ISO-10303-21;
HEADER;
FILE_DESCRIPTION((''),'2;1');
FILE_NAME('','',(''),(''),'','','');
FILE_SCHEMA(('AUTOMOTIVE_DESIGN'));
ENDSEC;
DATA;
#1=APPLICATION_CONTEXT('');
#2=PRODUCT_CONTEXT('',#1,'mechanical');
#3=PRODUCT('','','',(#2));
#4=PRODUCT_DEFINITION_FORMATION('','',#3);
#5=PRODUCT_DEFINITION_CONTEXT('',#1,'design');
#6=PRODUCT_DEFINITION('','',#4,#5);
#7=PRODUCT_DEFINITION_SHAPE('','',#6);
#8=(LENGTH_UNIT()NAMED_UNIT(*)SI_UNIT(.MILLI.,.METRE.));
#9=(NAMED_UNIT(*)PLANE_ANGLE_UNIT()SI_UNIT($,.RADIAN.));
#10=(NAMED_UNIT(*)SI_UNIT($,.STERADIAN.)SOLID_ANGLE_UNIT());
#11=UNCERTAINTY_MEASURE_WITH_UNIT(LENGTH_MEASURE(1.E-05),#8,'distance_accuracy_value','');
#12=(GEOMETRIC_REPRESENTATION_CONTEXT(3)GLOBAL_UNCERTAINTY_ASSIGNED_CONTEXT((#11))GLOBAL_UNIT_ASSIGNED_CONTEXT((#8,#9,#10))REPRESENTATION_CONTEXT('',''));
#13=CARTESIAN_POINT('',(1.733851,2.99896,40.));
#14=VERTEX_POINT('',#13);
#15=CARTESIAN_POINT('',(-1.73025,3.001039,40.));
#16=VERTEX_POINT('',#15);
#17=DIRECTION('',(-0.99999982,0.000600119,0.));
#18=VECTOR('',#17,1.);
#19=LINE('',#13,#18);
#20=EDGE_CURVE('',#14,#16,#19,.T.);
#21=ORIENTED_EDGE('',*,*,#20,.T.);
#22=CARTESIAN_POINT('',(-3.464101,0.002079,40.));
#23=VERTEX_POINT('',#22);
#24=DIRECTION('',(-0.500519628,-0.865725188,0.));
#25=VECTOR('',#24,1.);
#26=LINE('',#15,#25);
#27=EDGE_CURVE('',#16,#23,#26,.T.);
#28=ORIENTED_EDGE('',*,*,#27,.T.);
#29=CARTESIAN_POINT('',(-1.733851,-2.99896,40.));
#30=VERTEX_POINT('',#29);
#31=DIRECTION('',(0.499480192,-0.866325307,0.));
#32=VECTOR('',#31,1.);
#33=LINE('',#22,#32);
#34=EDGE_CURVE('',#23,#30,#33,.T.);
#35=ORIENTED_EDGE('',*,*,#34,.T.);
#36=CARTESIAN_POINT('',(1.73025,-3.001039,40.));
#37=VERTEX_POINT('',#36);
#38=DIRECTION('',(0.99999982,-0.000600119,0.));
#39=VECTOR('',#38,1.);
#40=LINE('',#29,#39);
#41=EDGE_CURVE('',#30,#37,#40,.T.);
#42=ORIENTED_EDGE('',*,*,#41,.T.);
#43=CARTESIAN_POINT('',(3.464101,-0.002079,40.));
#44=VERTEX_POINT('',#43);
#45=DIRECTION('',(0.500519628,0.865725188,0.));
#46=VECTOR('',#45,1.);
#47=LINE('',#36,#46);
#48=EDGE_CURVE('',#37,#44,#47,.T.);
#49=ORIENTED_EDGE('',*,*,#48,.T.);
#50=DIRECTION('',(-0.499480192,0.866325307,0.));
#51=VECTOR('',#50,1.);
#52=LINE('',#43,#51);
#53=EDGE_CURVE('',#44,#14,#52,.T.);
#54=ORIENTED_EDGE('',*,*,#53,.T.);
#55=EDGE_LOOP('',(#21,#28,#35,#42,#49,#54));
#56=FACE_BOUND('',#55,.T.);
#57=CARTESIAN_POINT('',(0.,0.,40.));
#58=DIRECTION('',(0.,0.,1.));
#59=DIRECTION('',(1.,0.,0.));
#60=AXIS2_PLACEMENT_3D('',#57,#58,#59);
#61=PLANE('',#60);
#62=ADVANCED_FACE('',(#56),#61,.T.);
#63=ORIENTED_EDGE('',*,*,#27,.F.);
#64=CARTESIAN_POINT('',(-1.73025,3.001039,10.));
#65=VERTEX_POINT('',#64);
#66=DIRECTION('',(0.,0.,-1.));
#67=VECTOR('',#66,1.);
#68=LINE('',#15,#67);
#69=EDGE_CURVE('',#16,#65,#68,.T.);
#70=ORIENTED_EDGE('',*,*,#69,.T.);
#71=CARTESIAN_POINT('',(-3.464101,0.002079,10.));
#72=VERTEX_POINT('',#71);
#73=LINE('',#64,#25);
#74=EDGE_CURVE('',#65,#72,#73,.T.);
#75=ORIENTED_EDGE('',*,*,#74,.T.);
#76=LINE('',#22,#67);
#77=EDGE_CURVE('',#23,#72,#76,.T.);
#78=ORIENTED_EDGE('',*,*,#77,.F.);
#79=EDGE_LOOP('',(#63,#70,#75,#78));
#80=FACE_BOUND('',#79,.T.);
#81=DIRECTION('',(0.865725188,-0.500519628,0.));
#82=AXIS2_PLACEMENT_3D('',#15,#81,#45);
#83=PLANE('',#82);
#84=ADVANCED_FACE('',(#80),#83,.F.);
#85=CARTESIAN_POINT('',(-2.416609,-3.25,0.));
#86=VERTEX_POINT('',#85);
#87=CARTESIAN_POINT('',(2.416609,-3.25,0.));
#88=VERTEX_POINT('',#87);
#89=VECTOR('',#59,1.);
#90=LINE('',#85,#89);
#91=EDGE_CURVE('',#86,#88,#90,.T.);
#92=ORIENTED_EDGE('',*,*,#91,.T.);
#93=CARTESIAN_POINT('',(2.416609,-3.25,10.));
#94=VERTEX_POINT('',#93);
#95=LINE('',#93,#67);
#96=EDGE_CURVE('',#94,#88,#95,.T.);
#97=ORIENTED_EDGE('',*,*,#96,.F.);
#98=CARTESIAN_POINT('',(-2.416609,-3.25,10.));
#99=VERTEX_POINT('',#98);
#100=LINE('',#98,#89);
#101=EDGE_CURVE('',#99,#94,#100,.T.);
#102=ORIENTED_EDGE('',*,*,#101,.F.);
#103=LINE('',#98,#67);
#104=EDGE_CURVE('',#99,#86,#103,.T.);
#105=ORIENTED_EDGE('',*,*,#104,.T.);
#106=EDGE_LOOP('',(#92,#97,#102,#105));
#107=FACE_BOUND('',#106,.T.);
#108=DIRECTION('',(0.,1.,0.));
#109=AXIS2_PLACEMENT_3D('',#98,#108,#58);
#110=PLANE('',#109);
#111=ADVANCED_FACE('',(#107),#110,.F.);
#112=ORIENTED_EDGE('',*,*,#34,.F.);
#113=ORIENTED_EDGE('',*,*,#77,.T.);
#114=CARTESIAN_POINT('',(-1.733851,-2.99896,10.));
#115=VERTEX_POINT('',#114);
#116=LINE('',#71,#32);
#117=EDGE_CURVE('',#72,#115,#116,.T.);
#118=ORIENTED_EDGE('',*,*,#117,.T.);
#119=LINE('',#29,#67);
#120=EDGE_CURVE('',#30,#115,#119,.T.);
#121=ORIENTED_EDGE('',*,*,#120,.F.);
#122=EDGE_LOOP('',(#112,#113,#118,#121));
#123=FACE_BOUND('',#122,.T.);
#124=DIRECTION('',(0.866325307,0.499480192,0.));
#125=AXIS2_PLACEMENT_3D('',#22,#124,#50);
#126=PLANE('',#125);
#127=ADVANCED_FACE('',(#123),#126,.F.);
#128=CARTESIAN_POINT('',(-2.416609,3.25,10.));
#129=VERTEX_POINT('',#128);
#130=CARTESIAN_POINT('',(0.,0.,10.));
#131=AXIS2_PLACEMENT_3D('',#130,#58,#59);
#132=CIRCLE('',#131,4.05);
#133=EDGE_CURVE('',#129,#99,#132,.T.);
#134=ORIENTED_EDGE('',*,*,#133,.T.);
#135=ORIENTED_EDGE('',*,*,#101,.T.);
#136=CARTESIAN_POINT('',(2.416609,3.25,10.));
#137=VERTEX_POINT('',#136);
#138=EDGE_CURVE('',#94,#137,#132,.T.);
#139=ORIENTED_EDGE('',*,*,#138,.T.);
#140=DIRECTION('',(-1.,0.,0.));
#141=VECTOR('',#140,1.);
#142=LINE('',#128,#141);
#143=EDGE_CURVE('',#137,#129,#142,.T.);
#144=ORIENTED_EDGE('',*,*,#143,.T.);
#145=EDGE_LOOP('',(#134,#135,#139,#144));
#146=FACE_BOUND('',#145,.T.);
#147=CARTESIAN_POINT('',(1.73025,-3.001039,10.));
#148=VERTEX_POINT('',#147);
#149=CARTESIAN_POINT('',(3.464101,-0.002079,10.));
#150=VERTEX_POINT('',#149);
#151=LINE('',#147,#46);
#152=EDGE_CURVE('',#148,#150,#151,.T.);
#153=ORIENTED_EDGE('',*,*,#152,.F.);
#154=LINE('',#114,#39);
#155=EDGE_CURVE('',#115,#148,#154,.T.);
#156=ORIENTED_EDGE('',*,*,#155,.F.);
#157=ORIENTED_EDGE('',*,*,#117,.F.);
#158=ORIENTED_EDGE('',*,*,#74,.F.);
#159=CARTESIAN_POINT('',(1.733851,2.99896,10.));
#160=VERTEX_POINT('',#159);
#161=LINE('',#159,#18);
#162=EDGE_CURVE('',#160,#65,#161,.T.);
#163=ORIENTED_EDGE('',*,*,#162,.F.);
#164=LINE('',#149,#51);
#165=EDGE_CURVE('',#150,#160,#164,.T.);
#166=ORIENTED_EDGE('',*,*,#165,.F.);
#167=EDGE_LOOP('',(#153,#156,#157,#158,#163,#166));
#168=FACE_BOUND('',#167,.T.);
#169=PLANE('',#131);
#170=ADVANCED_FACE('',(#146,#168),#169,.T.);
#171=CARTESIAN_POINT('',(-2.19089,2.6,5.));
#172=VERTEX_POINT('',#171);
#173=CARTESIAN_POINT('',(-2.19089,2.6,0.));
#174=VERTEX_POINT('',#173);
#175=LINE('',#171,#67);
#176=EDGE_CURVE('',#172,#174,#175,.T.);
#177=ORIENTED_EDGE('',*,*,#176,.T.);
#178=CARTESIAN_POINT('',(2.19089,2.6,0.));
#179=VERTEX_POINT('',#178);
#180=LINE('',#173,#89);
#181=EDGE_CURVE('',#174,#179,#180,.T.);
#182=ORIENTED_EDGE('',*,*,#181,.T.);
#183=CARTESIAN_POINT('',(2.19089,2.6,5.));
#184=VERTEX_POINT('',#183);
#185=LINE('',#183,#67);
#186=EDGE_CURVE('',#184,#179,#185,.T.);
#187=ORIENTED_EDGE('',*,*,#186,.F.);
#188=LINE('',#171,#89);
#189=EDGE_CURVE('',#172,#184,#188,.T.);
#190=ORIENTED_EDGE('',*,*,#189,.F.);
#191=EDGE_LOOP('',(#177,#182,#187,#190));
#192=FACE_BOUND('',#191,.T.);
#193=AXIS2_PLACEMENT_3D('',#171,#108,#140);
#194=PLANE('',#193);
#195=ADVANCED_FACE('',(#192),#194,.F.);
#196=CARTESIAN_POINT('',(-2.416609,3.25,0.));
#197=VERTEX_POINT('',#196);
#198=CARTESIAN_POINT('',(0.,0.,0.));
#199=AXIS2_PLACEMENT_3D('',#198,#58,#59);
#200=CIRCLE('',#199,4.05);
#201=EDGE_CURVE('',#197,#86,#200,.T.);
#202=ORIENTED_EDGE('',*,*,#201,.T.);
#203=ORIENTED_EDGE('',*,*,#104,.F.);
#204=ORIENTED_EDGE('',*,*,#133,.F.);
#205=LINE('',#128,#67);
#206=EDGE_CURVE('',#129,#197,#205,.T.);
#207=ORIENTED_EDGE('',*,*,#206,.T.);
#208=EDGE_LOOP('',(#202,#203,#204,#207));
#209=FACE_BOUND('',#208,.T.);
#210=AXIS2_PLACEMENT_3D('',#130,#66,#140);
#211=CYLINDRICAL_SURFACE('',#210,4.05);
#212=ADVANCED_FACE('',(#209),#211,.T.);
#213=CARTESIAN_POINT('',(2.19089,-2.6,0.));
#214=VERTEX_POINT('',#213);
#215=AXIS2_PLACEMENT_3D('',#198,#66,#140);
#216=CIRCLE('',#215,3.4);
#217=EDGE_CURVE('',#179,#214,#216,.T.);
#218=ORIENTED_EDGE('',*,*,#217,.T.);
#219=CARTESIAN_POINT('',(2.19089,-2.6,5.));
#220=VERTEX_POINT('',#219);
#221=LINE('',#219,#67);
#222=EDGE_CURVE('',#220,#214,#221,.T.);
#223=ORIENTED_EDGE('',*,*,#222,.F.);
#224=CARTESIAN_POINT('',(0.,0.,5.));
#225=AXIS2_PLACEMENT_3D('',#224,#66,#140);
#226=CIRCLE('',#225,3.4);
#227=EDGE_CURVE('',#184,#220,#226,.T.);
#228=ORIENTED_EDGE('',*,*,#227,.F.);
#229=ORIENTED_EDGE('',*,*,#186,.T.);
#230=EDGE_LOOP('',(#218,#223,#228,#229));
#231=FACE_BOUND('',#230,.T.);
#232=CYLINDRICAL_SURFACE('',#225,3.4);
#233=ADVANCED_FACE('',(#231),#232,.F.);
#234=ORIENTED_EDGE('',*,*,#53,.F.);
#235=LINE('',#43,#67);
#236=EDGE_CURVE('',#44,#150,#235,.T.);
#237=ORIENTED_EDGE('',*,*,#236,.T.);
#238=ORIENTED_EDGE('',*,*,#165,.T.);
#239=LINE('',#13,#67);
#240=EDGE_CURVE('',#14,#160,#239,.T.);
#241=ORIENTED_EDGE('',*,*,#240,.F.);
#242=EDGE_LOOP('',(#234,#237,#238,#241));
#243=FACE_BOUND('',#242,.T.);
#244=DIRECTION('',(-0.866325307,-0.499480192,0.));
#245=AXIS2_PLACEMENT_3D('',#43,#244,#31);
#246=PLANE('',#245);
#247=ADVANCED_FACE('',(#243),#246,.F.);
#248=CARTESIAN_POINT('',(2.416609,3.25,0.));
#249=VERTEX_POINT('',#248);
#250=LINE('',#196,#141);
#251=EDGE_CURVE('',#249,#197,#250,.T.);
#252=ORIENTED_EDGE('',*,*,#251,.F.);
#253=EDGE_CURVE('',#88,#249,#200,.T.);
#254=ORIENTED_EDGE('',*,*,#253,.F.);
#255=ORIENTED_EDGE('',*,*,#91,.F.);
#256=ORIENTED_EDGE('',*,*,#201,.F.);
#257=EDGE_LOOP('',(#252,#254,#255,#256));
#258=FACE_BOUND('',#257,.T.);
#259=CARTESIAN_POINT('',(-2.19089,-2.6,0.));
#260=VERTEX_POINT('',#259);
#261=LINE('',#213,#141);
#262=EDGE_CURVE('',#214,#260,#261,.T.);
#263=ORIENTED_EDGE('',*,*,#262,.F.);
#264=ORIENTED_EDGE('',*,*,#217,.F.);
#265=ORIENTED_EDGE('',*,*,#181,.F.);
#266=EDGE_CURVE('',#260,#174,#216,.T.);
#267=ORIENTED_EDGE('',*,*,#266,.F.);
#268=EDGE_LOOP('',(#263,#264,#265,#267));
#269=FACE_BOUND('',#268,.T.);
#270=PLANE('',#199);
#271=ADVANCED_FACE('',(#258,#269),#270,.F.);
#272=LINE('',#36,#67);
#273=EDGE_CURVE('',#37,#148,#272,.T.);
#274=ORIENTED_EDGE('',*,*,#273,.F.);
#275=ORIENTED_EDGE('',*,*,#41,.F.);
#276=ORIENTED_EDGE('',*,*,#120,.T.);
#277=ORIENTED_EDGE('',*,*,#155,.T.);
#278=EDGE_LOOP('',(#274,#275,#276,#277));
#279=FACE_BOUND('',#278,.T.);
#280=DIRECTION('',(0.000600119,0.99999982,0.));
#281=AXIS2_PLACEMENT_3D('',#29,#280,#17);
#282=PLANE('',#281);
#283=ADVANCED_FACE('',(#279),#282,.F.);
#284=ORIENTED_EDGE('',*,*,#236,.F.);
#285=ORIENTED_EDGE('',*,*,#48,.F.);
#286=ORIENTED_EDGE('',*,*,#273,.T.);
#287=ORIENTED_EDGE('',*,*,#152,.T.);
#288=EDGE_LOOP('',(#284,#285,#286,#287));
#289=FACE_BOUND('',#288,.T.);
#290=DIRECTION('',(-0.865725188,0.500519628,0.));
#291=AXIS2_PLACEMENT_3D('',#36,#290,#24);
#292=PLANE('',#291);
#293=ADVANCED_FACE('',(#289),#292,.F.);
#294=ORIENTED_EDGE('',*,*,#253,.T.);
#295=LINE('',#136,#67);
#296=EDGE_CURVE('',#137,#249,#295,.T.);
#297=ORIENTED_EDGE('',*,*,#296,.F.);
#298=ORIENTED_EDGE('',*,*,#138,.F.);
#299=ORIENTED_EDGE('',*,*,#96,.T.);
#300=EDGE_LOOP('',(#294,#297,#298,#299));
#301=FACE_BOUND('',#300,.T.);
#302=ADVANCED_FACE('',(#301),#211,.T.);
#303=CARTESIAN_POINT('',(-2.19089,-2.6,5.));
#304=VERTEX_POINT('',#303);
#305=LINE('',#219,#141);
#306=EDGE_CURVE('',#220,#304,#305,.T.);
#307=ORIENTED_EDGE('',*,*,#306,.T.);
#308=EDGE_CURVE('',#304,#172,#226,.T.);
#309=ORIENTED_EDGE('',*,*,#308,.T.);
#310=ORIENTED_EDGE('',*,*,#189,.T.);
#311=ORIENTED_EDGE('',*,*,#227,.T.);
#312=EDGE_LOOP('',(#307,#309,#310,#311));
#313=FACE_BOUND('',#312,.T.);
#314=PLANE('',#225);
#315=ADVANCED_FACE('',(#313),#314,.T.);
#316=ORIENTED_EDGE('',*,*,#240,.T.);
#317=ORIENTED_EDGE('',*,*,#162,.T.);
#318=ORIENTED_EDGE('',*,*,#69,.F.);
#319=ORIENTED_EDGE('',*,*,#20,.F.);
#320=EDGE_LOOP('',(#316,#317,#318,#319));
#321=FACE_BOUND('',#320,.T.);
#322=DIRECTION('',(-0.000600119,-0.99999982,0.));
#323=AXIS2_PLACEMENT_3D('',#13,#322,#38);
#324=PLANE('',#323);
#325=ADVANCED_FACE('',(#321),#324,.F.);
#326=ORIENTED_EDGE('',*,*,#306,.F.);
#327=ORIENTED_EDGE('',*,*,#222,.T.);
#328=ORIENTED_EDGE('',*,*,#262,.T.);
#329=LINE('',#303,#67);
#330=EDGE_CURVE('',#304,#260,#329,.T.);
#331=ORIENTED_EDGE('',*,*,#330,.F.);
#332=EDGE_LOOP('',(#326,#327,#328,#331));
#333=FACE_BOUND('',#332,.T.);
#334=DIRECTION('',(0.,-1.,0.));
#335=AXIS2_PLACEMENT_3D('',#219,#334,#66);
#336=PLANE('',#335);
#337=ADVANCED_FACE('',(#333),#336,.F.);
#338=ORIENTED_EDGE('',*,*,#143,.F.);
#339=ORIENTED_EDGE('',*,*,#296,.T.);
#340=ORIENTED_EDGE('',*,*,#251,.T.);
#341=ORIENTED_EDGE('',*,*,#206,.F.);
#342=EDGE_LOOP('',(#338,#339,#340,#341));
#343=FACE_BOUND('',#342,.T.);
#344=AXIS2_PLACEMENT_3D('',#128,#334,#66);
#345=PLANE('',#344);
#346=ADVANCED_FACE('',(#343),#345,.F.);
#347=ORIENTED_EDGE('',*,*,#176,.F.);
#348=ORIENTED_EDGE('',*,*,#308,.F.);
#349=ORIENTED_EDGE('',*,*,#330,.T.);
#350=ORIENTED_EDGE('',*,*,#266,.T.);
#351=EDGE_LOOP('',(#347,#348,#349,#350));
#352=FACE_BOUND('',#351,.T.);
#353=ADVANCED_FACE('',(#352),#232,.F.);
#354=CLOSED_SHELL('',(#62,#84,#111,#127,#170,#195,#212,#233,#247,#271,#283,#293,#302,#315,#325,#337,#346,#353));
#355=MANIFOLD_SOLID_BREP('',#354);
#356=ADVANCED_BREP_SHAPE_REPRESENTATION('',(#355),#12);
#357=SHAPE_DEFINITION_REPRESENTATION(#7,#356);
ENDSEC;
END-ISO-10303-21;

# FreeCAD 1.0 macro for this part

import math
import FreeCAD as App
import Part
import Sketcher

doc = App.newDocument("Part")
body = doc.addObject("PartDesign::Body", "Body")

# Sketch on XY plane
sketch1 = doc.addObject("Sketcher::SketchObject", "Sketch")
body.addObject(sketch1)
sketch1.AttachmentSupport = (doc.XY_Plane, [""])
sketch1.MapMode = "FlatFace"
sketch1.addGeometry([
    Part.LineSegment(App.Vector(2.4, 3.2, 0), App.Vector(-2.4, 3.2, 0)),
    Part.ArcOfCircle(Part.Circle(App.Vector(0, 0, 0), App.Vector(0, 0, 1), 4), math.radians(127), math.radians(233)),
    Part.LineSegment(App.Vector(-2.4, -3.2, 0), App.Vector(2.4, -3.2, 0)),
    Part.ArcOfCircle(Part.Circle(App.Vector(0, 0, 0), App.Vector(0, 0, 1), 4), math.radians(-53), math.radians(53)),
], False)
sketch1.addConstraint([
    Sketcher.Constraint("Coincident", 0, 2, 1, 1),
    Sketcher.Constraint("Coincident", 1, 2, 2, 1),
    Sketcher.Constraint("Coincident", 2, 2, 3, 1),
    Sketcher.Constraint("Coincident", 3, 2, 0, 1),
    Sketcher.Constraint("Horizontal", 0),
    Sketcher.Constraint("Horizontal", 2),
    Sketcher.Constraint("Coincident", 1, 3, -1, 1),
    Sketcher.Constraint("Coincident", 3, 3, -1, 1),
    Sketcher.Constraint("Equal", 1, 3),
    Sketcher.Constraint("Vertical", 0, 2, 1, 2),
    Sketcher.Constraint("Radius", 1, 4.05),
    Sketcher.Constraint("DistanceY", 1, 2, 0, 2, 6.5),
])
pad1 = doc.addObject("PartDesign::Pad", "Pad")
body.addObject(pad1)
pad1.Profile = sketch1
pad1.Length = 10

# Sketch on XY plane
sketch2 = doc.addObject("Sketcher::SketchObject", "Sketch001")
body.addObject(sketch2)
sketch2.AttachmentSupport = (doc.XY_Plane, [""])
sketch2.MapMode = "FlatFace"
sketch2.AttachmentOffset = App.Placement(App.Vector(0, 0, 10), App.Rotation())
sketch2.addGeometry([
    Part.LineSegment(App.Vector(1.7, -3, 0), App.Vector(3.5, 0, 0)),  # 0
    Part.LineSegment(App.Vector(3.5, 0, 0), App.Vector(1.7, 3, 0)),  # 1
    Part.LineSegment(App.Vector(1.7, 3, 0), App.Vector(-1.7, 3, 0)),  # 2
    Part.LineSegment(App.Vector(-1.7, 3, 0), App.Vector(-3.5, 0, 0)),  # 3
    Part.LineSegment(App.Vector(-3.5, 0, 0), App.Vector(-1.7, -3, 0)),  # 4
    Part.LineSegment(App.Vector(-1.7, -3, 0), App.Vector(1.7, -3, 0)),  # 5
], False)
sketch2.addConstraint([
    Sketcher.Constraint("Coincident", 0, 2, 1, 1),
    Sketcher.Constraint("Coincident", 1, 2, 2, 1),
    Sketcher.Constraint("Coincident", 2, 2, 3, 1),
    Sketcher.Constraint("Coincident", 3, 2, 4, 1),
    Sketcher.Constraint("Coincident", 4, 2, 5, 1),
    Sketcher.Constraint("Coincident", 5, 2, 0, 1),
    Sketcher.Constraint("Symmetric", 0, 2, 3, 2, -1, 1),
    Sketcher.Constraint("Symmetric", 1, 2, 4, 2, -1, 1),
    Sketcher.Constraint("Symmetric", 2, 2, 5, 2, -1, 1),
    Sketcher.Constraint("Equal", 0, 1),
    Sketcher.Constraint("Equal", 1, 2),
    Sketcher.Constraint("DistanceY", 4, 2, 2, 2, 5.999999),
    Sketcher.Constraint("Distance", 0, 3.464102),
    Sketcher.Constraint("DistanceX", 4, 2, 2, 2, 0.003601),
    Sketcher.Constraint("DistanceY", 0, 2, -1, 1, 0.002079),
])
pad2 = doc.addObject("PartDesign::Pad", "Pad001")
body.addObject(pad2)
pad2.Profile = sketch2
pad2.Length = 30

# Sketch on XY plane
sketch3 = doc.addObject("Sketcher::SketchObject", "Sketch002")
body.addObject(sketch3)
sketch3.AttachmentSupport = (doc.XY_Plane, [""])
sketch3.MapMode = "FlatFace"
sketch3.addGeometry([
    Part.LineSegment(App.Vector(-2.2, 2.6, 0), App.Vector(2.2, 2.6, 0)),
    Part.ArcOfCircle(Part.Circle(App.Vector(0, 0, 0), App.Vector(0, 0, 1), 3.4), math.radians(-50), math.radians(50)),
    Part.LineSegment(App.Vector(2.2, -2.6, 0), App.Vector(-2.2, -2.6, 0)),
    Part.ArcOfCircle(Part.Circle(App.Vector(0, 0, 0), App.Vector(0, 0, 1), 3.4), math.radians(130), math.radians(230)),
], False)
sketch3.addConstraint([
    Sketcher.Constraint("Coincident", 0, 2, 1, 2),
    Sketcher.Constraint("Coincident", 1, 1, 2, 1),
    Sketcher.Constraint("Coincident", 2, 2, 3, 2),
    Sketcher.Constraint("Coincident", 3, 1, 0, 1),
    Sketcher.Constraint("Horizontal", 0),
    Sketcher.Constraint("Horizontal", 2),
    Sketcher.Constraint("Coincident", 1, 3, -1, 1),
    Sketcher.Constraint("Coincident", 3, 3, -1, 1),
    Sketcher.Constraint("Equal", 1, 3),
    Sketcher.Constraint("Vertical", 0, 2, 1, 1),
    Sketcher.Constraint("Radius", 1, 3.4),
    Sketcher.Constraint("DistanceY", -1, 1, 0, 2, 2.6),
])
pocket1 = doc.addObject("PartDesign::Pocket", "Pocket")
body.addObject(pocket1)
pocket1.Profile = sketch3
pocket1.Length = 5
pocket1.Reversed = True

doc.recompute()
